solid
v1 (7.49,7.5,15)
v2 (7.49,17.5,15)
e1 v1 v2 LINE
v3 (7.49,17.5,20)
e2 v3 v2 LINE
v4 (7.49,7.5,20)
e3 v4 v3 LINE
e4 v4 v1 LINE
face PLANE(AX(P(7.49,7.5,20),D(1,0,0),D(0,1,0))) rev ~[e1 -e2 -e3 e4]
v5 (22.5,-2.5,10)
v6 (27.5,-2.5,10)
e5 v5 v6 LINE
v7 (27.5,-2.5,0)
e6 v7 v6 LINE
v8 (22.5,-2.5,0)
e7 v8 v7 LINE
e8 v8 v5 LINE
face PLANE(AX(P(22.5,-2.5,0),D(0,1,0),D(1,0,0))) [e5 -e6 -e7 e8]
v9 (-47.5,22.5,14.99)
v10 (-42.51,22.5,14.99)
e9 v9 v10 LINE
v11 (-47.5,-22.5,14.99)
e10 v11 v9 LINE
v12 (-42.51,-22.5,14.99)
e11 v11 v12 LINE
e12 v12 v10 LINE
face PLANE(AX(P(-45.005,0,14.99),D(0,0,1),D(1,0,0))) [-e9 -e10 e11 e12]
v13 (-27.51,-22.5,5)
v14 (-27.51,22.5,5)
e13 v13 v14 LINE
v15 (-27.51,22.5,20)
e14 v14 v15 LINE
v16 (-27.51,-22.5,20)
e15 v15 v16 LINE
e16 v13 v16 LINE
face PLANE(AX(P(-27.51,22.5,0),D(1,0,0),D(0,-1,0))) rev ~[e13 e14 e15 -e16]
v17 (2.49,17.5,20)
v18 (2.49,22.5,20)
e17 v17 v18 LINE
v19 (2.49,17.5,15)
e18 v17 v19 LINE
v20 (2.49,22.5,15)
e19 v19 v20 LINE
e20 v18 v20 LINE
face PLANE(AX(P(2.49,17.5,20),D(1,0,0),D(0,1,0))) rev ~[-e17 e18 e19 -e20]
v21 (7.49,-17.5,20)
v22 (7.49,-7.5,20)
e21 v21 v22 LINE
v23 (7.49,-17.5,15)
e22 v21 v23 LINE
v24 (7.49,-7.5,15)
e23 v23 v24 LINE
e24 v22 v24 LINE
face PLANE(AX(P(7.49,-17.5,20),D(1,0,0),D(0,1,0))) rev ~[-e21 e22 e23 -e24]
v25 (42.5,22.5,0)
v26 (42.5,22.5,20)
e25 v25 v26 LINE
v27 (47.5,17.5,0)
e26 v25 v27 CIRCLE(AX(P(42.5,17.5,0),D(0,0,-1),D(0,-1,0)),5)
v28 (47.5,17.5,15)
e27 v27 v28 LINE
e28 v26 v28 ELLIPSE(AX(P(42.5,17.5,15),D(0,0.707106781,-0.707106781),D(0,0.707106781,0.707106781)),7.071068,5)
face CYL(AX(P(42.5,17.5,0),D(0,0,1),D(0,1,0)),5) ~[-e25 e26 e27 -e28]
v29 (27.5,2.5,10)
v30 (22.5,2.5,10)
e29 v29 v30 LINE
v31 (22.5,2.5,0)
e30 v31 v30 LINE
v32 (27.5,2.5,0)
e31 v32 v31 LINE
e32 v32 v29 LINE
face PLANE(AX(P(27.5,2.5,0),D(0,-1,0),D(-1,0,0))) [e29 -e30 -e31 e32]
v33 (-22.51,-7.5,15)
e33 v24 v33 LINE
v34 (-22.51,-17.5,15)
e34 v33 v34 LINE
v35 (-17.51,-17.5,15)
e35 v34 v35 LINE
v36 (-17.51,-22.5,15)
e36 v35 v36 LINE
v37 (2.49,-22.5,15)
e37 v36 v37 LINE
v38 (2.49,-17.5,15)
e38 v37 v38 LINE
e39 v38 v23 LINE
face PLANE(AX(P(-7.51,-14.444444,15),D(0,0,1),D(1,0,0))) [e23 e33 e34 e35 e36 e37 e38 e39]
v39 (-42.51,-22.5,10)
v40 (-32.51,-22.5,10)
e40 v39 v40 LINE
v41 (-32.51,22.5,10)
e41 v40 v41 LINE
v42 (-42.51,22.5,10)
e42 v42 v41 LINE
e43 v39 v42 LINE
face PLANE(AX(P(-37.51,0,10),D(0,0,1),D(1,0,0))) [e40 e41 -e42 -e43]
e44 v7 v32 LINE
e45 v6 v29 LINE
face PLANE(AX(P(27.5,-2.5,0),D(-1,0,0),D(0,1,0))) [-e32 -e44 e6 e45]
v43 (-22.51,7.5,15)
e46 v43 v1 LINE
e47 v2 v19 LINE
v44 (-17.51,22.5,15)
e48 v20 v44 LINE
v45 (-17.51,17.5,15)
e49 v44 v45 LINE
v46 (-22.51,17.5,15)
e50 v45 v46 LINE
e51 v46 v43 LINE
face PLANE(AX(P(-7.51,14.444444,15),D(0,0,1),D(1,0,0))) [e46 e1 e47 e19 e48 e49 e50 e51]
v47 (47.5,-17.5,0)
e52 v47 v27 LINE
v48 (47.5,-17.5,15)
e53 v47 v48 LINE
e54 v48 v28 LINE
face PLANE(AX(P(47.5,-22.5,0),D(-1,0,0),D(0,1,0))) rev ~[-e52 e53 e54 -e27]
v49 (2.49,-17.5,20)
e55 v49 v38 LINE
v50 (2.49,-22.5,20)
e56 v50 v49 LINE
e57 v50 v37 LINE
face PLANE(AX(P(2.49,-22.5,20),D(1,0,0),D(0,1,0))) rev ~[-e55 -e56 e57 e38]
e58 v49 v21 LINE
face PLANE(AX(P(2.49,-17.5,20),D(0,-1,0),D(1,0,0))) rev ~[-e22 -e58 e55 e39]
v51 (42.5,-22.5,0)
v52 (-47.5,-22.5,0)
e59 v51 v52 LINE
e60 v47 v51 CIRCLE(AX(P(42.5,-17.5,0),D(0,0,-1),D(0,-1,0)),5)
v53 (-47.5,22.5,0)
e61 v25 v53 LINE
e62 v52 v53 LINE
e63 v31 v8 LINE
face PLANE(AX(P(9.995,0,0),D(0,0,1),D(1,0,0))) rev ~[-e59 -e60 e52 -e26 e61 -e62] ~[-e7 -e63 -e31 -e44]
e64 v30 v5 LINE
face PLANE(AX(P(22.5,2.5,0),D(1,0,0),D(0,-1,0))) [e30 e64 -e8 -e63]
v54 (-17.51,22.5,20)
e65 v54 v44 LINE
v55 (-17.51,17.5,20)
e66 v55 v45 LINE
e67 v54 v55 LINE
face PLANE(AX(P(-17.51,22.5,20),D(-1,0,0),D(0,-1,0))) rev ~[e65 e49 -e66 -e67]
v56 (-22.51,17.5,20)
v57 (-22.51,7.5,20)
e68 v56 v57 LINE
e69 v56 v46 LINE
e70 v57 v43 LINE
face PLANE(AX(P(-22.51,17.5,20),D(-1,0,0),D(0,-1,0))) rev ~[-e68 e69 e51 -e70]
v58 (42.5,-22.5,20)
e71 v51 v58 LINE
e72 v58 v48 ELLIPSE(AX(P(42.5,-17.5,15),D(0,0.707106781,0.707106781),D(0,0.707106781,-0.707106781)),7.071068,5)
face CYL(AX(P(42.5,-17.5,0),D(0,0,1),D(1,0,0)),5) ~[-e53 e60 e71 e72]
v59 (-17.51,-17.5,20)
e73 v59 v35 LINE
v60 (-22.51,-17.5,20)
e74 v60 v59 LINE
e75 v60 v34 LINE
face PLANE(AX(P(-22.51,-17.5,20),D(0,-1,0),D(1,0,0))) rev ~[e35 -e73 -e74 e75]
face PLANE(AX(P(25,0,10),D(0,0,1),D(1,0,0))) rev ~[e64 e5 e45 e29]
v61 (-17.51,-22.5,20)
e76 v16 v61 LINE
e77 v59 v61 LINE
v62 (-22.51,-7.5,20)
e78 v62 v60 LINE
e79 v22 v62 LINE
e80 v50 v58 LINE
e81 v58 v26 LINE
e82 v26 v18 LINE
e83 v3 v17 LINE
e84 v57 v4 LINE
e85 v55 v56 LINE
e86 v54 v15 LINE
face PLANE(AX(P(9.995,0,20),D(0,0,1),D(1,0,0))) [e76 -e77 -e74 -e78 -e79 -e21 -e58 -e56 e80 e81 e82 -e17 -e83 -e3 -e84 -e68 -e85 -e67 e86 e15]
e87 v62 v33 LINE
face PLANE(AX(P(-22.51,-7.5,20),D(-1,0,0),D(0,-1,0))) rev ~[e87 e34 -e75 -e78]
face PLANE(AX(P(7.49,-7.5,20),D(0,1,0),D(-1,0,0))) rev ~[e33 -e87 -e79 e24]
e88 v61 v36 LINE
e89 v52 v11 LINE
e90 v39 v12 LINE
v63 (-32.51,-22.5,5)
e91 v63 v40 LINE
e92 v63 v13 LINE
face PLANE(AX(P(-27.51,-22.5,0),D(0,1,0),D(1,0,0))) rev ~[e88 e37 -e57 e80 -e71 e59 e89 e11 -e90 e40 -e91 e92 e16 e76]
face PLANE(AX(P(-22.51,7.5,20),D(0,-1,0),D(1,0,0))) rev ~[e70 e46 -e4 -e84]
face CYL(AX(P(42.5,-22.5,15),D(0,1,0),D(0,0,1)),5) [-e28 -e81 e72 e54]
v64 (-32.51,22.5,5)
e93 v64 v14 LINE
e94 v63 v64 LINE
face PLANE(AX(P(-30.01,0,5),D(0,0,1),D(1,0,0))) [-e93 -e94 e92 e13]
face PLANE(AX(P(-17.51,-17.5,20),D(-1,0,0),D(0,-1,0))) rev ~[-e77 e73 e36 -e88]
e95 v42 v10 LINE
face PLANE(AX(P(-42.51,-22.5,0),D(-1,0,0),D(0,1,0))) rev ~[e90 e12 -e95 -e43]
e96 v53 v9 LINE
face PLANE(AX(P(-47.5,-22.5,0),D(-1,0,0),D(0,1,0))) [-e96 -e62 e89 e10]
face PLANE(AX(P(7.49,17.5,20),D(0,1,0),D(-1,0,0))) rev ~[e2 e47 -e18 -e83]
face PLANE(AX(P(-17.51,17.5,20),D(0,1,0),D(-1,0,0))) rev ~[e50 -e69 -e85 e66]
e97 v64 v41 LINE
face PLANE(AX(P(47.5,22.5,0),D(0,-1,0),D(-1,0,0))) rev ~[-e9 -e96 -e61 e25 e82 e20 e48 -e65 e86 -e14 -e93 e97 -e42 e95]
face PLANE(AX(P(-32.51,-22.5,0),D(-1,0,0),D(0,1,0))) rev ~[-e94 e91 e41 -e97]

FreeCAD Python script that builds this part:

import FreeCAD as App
import Part
import Sketcher


def edges_at(feature, points):
    """Names of the edges that pass closest to the given points."""
    edges = feature.Shape.Edges
    near = lambda p: min(range(len(edges)), key=lambda i: edges[i].distToShape(Part.Vertex(*p))[0])
    return sorted({f"Edge{near(p) + 1}" for p in points})


def add_polygon(sketch, points):
    """Adds a closed chain of lines whose ends are joined by coincident constraints."""
    first, n = sketch.GeometryCount, len(points)
    for a, b in zip(points, points[1:] + points[:1]):
        sketch.addGeometry(Part.LineSegment(App.Vector(*a, 0), App.Vector(*b, 0)), False)
    for i in range(n):
        sketch.addConstraint(Sketcher.Constraint("Coincident", first + i, 2, first + (i + 1) % n, 1))

doc = App.newDocument("Part")
body = doc.addObject("PartDesign::Body", "Body")

sketch1 = doc.addObject("Sketcher::SketchObject", "Sketch")
body.addObject(sketch1)
sketch1.AttachmentSupport = (doc.XY_Plane, [""])
sketch1.MapMode = "FlatFace"
add_polygon(sketch1, [(-47.5, 22.5), (-47.5, -22.5), (-42.5, -22.5), (-42.5, 22.5)])
sketch1.addConstraint([
    Sketcher.Constraint("Vertical", 0),
    Sketcher.Constraint("Horizontal", 1),
    Sketcher.Constraint("Vertical", 2),
    Sketcher.Constraint("Horizontal", 3),
    Sketcher.Constraint("DistanceY", 0, 2, 0, 1, 45.0),
    Sketcher.Constraint("DistanceX", 1, 1, 1, 2, 4.99),
    Sketcher.Constraint("DistanceX", 0, 2, -1, 1, 47.5),
    Sketcher.Constraint("DistanceY", 0, 2, -1, 1, 22.5),
])
pad1 = doc.addObject("PartDesign::Pad", "Pad")
body.addObject(pad1)
pad1.Profile = sketch1
pad1.Length = 14.99

sketch2 = doc.addObject("Sketcher::SketchObject", "Sketch001")
body.addObject(sketch2)
sketch2.AttachmentSupport = (doc.XY_Plane, [""])
sketch2.MapMode = "FlatFace"
add_polygon(sketch2, [(-43, 22), (-43, -22), (-33, -22), (-33, 22)])
sketch2.addConstraint([
    Sketcher.Constraint("Vertical", 0),
    Sketcher.Constraint("Horizontal", 1),
    Sketcher.Constraint("Vertical", 2),
    Sketcher.Constraint("Horizontal", 3),
    Sketcher.Constraint("DistanceX", 1, 1, 1, 2, 10.0),
    Sketcher.Constraint("DistanceY", 0, 2, 0, 1, 45.0),
    Sketcher.Constraint("DistanceY", 0, 2, -1, 1, 22.5),
    Sketcher.Constraint("DistanceX", 0, 2, -1, 1, 42.51),
])
pad2 = doc.addObject("PartDesign::Pad", "Pad001")
body.addObject(pad2)
pad2.Profile = sketch2
pad2.Length = 10

sketch3 = doc.addObject("Sketcher::SketchObject", "Sketch002")
body.addObject(sketch3)
sketch3.AttachmentSupport = (doc.XY_Plane, [""])
sketch3.MapMode = "FlatFace"
add_polygon(sketch3, [(-32.5, 22.5), (-32.5, -22.5), (-27.5, -22.5), (-27.5, 22.5)])
sketch3.addConstraint([
    Sketcher.Constraint("Vertical", 0),
    Sketcher.Constraint("Horizontal", 1),
    Sketcher.Constraint("Vertical", 2),
    Sketcher.Constraint("Horizontal", 3),
    Sketcher.Constraint("DistanceX", 1, 1, 1, 2, 5.0),
    Sketcher.Constraint("DistanceY", 0, 2, 0, 1, 45.0),
    Sketcher.Constraint("DistanceY", 0, 2, -1, 1, 22.5),
    Sketcher.Constraint("DistanceX", 0, 2, -1, 1, 32.51),
])
pad3 = doc.addObject("PartDesign::Pad", "Pad002")
body.addObject(pad3)
pad3.Profile = sketch3
pad3.Length = 5

sketch4 = doc.addObject("Sketcher::SketchObject", "Sketch003")
body.addObject(sketch4)
sketch4.AttachmentSupport = (doc.XY_Plane, [""])
sketch4.MapMode = "FlatFace"
add_polygon(sketch4, [(48, 22), (-28, 22), (-28, -22), (48, -22)])
sketch4.addConstraint([
    Sketcher.Constraint("Horizontal", 0),
    Sketcher.Constraint("Vertical", 1),
    Sketcher.Constraint("Horizontal", 2),
    Sketcher.Constraint("Vertical", 3),
    Sketcher.Constraint("DistanceY", 1, 2, 1, 1, 45.0),
    Sketcher.Constraint("DistanceX", 0, 2, 0, 1, 75.01),
    Sketcher.Constraint("DistanceY", -1, 1, 0, 2, 22.5),
    Sketcher.Constraint("DistanceX", -1, 1, 2, 2, 47.5),
])
pad4 = doc.addObject("PartDesign::Pad", "Pad003")
body.addObject(pad4)
pad4.Profile = sketch4
pad4.Length = 20

sketch5 = doc.addObject("Sketcher::SketchObject", "Sketch004")
body.addObject(sketch5)
sketch5.AttachmentSupport = (doc.XY_Plane, [""])
sketch5.MapMode = "FlatFace"
sketch5.AttachmentOffset = App.Placement(App.Vector(0, 0, 20), App.Rotation())
add_polygon(sketch5, [(-18, -22), (2, -22), (2, -18), (7, -18), (7, -8), (-23, -8), (-23, -18), (-18, -18)])
add_polygon(sketch5, [(2, 18), (2, 22), (-18, 22), (-18, 18), (-23, 18), (-23, 8), (7, 8), (7, 18)])
sketch5.addConstraint([
    Sketcher.Constraint("Horizontal", 0),
    Sketcher.Constraint("Vertical", 1),
    Sketcher.Constraint("Horizontal", 2),
    Sketcher.Constraint("Vertical", 3),
    Sketcher.Constraint("Horizontal", 4),
    Sketcher.Constraint("Vertical", 5),
    Sketcher.Constraint("Horizontal", 6),
    Sketcher.Constraint("Vertical", 7),
    Sketcher.Constraint("Vertical", 8),
    Sketcher.Constraint("Horizontal", 9),
    Sketcher.Constraint("Vertical", 10),
    Sketcher.Constraint("Horizontal", 11),
    Sketcher.Constraint("Vertical", 12),
    Sketcher.Constraint("Horizontal", 13),
    Sketcher.Constraint("Vertical", 14),
    Sketcher.Constraint("Horizontal", 15),
    Sketcher.Constraint("Symmetric", 0, 2, 8, 2, -1),
    Sketcher.Constraint("Symmetric", 6, 2, 10, 2, -1),
    Sketcher.Constraint("Symmetric", 4, 2, 12, 2, -1),
    Sketcher.Constraint("Symmetric", 2, 2, 14, 2, -1),
    Sketcher.Constraint("Horizontal", 2, 2, 5, 2),
    Sketcher.Constraint("Equal", 2, 6),
    Sketcher.Constraint("Equal", 15, 1),
    Sketcher.Constraint("DistanceX", 0, 1, 0, 2, 20.0),
    Sketcher.Constraint("DistanceX", 2, 1, 2, 2, 5.0),
    Sketcher.Constraint("DistanceY", 3, 1, 3, 2, 10.0),
    Sketcher.Constraint("DistanceY", 3, 2, 8, 2, 30.0),
    Sketcher.Constraint("DistanceX", -1, 1, 0, 2, 2.49),
])
pocket1 = doc.addObject("PartDesign::Pocket", "Pocket")
body.addObject(pocket1)
pocket1.Profile = sketch5
pocket1.Length = 5

sketch6 = doc.addObject("Sketcher::SketchObject", "Sketch005")
body.addObject(sketch6)
sketch6.AttachmentSupport = (doc.XY_Plane, [""])
sketch6.MapMode = "FlatFace"
add_polygon(sketch6, [(22, -2), (28, -2), (28, 2), (22, 2)])
sketch6.addConstraint([
    Sketcher.Constraint("Horizontal", 0),
    Sketcher.Constraint("Vertical", 1),
    Sketcher.Constraint("Horizontal", 2),
    Sketcher.Constraint("Vertical", 3),
    Sketcher.Constraint("Equal", 2, 1),
    Sketcher.Constraint("DistanceX", 0, 1, 0, 2, 5.0),
    Sketcher.Constraint("DistanceX", -1, 1, 0, 2, 27.5),
    Sketcher.Constraint("DistanceY", 0, 2, -1, 1, 2.5),
])
pocket2 = doc.addObject("PartDesign::Pocket", "Pocket001")
body.addObject(pocket2)
pocket2.Profile = sketch6
pocket2.Length = 10
pocket2.Reversed = True
doc.recompute()

fillet = doc.addObject("PartDesign::Fillet", "Fillet")
body.addObject(fillet)
fillet.Base = (pocket2, edges_at(pocket2, [(47.5, 0, 20), (47.5, 22.5, 10), (47.5, -22.5, 10)]))
fillet.Radius = 5

doc.recompute()
